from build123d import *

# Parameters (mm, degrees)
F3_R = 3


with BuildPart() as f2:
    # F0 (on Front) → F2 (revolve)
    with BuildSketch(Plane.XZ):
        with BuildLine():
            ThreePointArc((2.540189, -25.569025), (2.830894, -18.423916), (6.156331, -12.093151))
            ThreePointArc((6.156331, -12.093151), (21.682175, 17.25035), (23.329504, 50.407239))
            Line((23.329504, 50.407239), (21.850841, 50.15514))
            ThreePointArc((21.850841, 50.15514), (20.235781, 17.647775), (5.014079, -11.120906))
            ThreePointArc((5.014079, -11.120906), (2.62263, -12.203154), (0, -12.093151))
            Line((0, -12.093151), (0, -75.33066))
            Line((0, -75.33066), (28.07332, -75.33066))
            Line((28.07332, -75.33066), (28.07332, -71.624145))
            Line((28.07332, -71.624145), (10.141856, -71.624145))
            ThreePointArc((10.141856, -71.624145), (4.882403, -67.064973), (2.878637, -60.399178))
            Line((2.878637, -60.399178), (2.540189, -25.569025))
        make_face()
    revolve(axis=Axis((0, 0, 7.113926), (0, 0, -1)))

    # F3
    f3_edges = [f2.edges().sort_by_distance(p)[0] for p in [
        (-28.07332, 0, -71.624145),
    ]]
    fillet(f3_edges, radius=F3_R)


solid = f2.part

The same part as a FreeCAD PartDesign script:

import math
import FreeCAD as App
import Part
import Sketcher
from FreeCAD import Vector
Q = App.Units.Quantity


def edges_at(feature, points):
    """Names of the edges that pass closest to the given points."""
    edges = feature.Shape.Edges
    near = lambda p: min(range(len(edges)), key=lambda i: edges[i].distToShape(Part.Vertex(*p))[0])
    return sorted({f"Edge{near(p) + 1}" for p in points})

doc = App.newDocument("Part")
params = doc.addObject("Spreadsheet::Sheet", "Params")
for row, (alias, value) in enumerate([
    ("sketch1_length", "1.499999 mm"),
    ("revolution_angle", "360 deg"),
    ("fillet_radius", "3 mm"),
], start=1):
    params.set(f"A{row}", alias)
    params.set(f"B{row}", "=" + value)
    params.setAlias(f"B{row}", alias)

body = doc.addObject("PartDesign::Body", "Body")

# Sketch on XZ plane
sketch1 = doc.addObject("Sketcher::SketchObject", "Sketch")
body.addObject(sketch1)
sketch1.AttachmentSupport = (doc.XZ_Plane, [""])
sketch1.MapMode = "FlatFace"
sketch1.addGeometry([
    Part.ArcOfCircle(Part.Circle(Vector(18.549647, -22.641915, 0), Vector(0, 0, 1), 16.274849), math.radians(139.596713), math.radians(190.361302)),  # 0
    Part.ArcOfCircle(Part.Circle(Vector(-52.153387, 37.538078, 0), Vector(0, 0, 1), 76.572071), math.radians(-40.403288), math.radians(9.67539)),  # 1
    Part.LineSegment(Vector(23.329504, 50.407239, 0), Vector(21.850841, 50.15514, 0)),  # 2
    Part.ArcOfCircle(Part.Circle(Vector(-52.153397, 37.538082, 0), Vector(0, 0, 1), 75.072082), math.radians(-40.403285), math.radians(9.675386)),  # 3
    Part.ArcOfCircle(Part.Circle(Vector(1.542627, -6.633343, 0), Vector(0, 0, 1), 5.673553), math.radians(-105.777233), math.radians(-52.275476)),  # 4
    Part.LineSegment(Vector(0, -12.093151, 0), Vector(0, -75.33066, 0)),  # 5
    Part.LineSegment(Vector(0, -75.33066, 0), Vector(28.07332, -75.33066, 0)),  # 6
    Part.LineSegment(Vector(28.07332, -75.33066, 0), Vector(28.07332, -71.624145, 0)),  # 7
    Part.LineSegment(Vector(28.07332, -71.624145, 0), Vector(10.141856, -71.624145, 0)),  # 8
    Part.ArcOfCircle(Part.Circle(Vector(15.371692, -60.277781, 0), Vector(0, 0, 1), 12.493645), math.radians(-179.443264), math.radians(-114.746213)),  # 9
    Part.LineSegment(Vector(2.878637, -60.399178, 0), Vector(2.540189, -25.569025, 0)),  # 10
], False)
sketch1.addConstraint([
    Sketcher.Constraint("Tangent", 0, 1, 1, 1),
    Sketcher.Constraint("Coincident", 1, 2, 2, 1),
    Sketcher.Constraint("Coincident", 2, 2, 3, 2),
    Sketcher.Constraint("Coincident", 3, 1, 4, 2),
    Sketcher.Constraint("Coincident", 4, 1, 5, 1),
    Sketcher.Constraint("Coincident", 5, 2, 6, 1),
    Sketcher.Constraint("Coincident", 6, 2, 7, 1),
    Sketcher.Constraint("Coincident", 7, 2, 8, 1),
    Sketcher.Constraint("Coincident", 8, 2, 9, 2),
    Sketcher.Constraint("Tangent", 9, 1, 10, 1),
    Sketcher.Constraint("Coincident", 10, 2, 0, 2),
    Sketcher.Constraint("Vertical", 5),
    Sketcher.Constraint("Horizontal", 6),
    Sketcher.Constraint("Vertical", 7),
    Sketcher.Constraint("Horizontal", 8),
    Sketcher.Constraint("PointOnObject", 4, 1, -2),
    Sketcher.Constraint("Horizontal", 0, 1, 4, 1),
    Sketcher.Constraint("Distance", 2, Q("1.499999 mm")),
    Sketcher.Constraint("Radius", 0, Q("16.274849 mm")),
    Sketcher.Constraint("Radius", 1, Q("76.572071 mm")),
    Sketcher.Constraint("Radius", 3, Q("75.072082 mm")),
    Sketcher.Constraint("Radius", 4, Q("5.673553 mm")),
    Sketcher.Constraint("Radius", 9, Q("12.493645 mm")),
    Sketcher.Constraint("DistanceX", 6, 1, 6, 2, Q("28.07332 mm")),
    Sketcher.Constraint("DistanceY", 5, 2, 5, 1, Q("63.237509 mm")),
    Sketcher.Constraint("DistanceX", 3, 3, 1, 2, Q("75.482901 mm")),
    Sketcher.Constraint("DistanceY", 2, 2, 1, 2, Q("0.252099 mm")),
    Sketcher.Constraint("DistanceX", 8, 2, 8, 1, Q("17.931464 mm")),
    Sketcher.Constraint("DistanceY", 7, 1, 7, 2, Q("3.706515 mm")),
    Sketcher.Constraint("DistanceY", -1, 1, 1, 3, Q("37.538078 mm")),
    Sketcher.Constraint("DistanceY", -1, 1, 3, 3, Q("37.538082 mm")),
    Sketcher.Constraint("DistanceY", 9, 3, -1, 1, Q("60.277781 mm")),
    Sketcher.Constraint("DistanceX", -1, 1, 0, 1, Q("6.156331 mm")),
    Sketcher.Constraint("DistanceY", 0, 1, -1, 1, Q("12.093151 mm")),
    Sketcher.Constraint("DistanceX", -1, 1, 3, 1, Q("5.014079 mm")),
    Sketcher.Constraint("DistanceX", -1, 1, 10, 2, Q("2.540189 mm")),
])
sketch1.setExpression("Constraints[17]", "Params.sketch1_length")
revolution = doc.addObject("PartDesign::Revolution", "Revolution")
body.addObject(revolution)
revolution.Profile = sketch1
revolution.ReferenceAxis = (sketch1, ["V_Axis"])
revolution.setExpression("Angle", "Params.revolution_angle")
doc.recompute()

fillet = doc.addObject("PartDesign::Fillet", "Fillet")
body.addObject(fillet)
fillet.Base = (revolution, edges_at(revolution, [(-28.073, 0, -71.624)]))
fillet.setExpression("Radius", "Params.fillet_radius")

doc.recompute()
